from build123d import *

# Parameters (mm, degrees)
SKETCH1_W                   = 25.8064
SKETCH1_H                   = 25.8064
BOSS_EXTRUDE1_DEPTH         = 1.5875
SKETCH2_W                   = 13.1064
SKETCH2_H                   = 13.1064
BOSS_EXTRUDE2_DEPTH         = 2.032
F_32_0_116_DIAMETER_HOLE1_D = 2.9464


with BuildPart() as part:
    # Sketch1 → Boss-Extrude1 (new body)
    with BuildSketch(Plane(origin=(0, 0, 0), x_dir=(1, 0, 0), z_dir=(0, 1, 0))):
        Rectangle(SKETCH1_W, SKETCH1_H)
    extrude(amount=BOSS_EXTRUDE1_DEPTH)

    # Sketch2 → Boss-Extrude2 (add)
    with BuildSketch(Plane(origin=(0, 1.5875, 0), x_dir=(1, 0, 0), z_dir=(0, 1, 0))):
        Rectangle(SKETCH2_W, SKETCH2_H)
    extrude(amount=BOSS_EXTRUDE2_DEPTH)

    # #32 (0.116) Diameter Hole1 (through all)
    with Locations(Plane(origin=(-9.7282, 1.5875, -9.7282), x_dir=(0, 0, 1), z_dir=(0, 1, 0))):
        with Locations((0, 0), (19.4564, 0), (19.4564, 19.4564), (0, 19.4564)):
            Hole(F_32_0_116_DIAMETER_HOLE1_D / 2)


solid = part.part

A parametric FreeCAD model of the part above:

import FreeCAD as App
import Part
import Sketcher

V = App.Vector
Q = App.Units.Quantity

doc = App.newDocument("Part")
body = doc.addObject("PartDesign::Body", "Body")

sketch1 = body.newObject("Sketcher::SketchObject", "Sketch")
sketch1.AttachmentSupport = (doc.getObject("XZ_Plane"), [""])
sketch1.MapMode = "FlatFace"
sketch1.addGeometry([
    Part.LineSegment(V(-13, -13, 0), V(-13, 13, 0)),
    Part.LineSegment(V(-13, 13, 0), V(13, 13, 0)),
    Part.LineSegment(V(13, 13, 0), V(13, -13, 0)),
    Part.LineSegment(V(13, -13, 0), V(-13, -13, 0)),
], False)
sketch1.addConstraint([
    Sketcher.Constraint("Coincident", 0, 2, 1, 1),
    Sketcher.Constraint("Coincident", 1, 2, 2, 1),
    Sketcher.Constraint("Coincident", 2, 2, 3, 1),
    Sketcher.Constraint("Coincident", 3, 2, 0, 1),
    Sketcher.Constraint("Vertical", 0),
    Sketcher.Constraint("Horizontal", 1),
    Sketcher.Constraint("Vertical", 2),
    Sketcher.Constraint("Horizontal", 3),
    Sketcher.Constraint("Symmetric", 0, 2, 2, 2, -1, 1),
    Sketcher.Constraint("Equal", 3, 0),
    Sketcher.Constraint("DistanceX", 1, 1, 1, 2, Q("1.016 in")),
])
pad1 = body.newObject("PartDesign::Pad", "Pad")
pad1.Profile = sketch1
pad1.Length = Q("0.0625 in")
pad1.Reversed = True

sketch2 = body.newObject("Sketcher::SketchObject", "Sketch001")
sketch2.AttachmentSupport = (doc.getObject("XZ_Plane"), [""])
sketch2.MapMode = "FlatFace"
sketch2.AttachmentOffset = App.Placement(V(0, 0, -0.0625 * 25.4), App.Rotation())
sketch2.addGeometry([
    Part.LineSegment(V(-7, -7, 0), V(-7, 7, 0)),
    Part.LineSegment(V(-7, 7, 0), V(7, 7, 0)),
    Part.LineSegment(V(7, 7, 0), V(7, -7, 0)),
    Part.LineSegment(V(7, -7, 0), V(-7, -7, 0)),
], False)
sketch2.addConstraint([
    Sketcher.Constraint("Coincident", 0, 2, 1, 1),
    Sketcher.Constraint("Coincident", 1, 2, 2, 1),
    Sketcher.Constraint("Coincident", 2, 2, 3, 1),
    Sketcher.Constraint("Coincident", 3, 2, 0, 1),
    Sketcher.Constraint("Vertical", 0),
    Sketcher.Constraint("Horizontal", 1),
    Sketcher.Constraint("Vertical", 2),
    Sketcher.Constraint("Horizontal", 3),
    Sketcher.Constraint("Symmetric", 0, 2, 2, 2, -1, 1),
    Sketcher.Constraint("Equal", 3, 0),
    Sketcher.Constraint("DistanceX", 1, 1, 1, 2, Q("0.516 in")),
])
pad2 = body.newObject("PartDesign::Pad", "Pad001")
pad2.Profile = sketch2
pad2.Length = Q("0.08 in")
pad2.Reversed = True

sketch3 = body.newObject("Sketcher::SketchObject", "Sketch002")
sketch3.AttachmentSupport = (doc.getObject("XZ_Plane"), [""])
sketch3.MapMode = "FlatFace"
sketch3.AttachmentOffset = App.Placement(V(0, 0, -0.0625 * 25.4), App.Rotation())
sketch3.addGeometry([
    Part.Circle(V(-9.7, -9.7, 0), V(0, 0, 1), 1.5),
    Part.Circle(V(-9.7, 9.7, 0), V(0, 0, 1), 1.5),
    Part.Circle(V(9.7, 9.7, 0), V(0, 0, 1), 1.5),
    Part.Circle(V(9.7, -9.7, 0), V(0, 0, 1), 1.5),
], False)
sketch3.addConstraint([
    Sketcher.Constraint("Equal", 0, 1),
    Sketcher.Constraint("Equal", 1, 2),
    Sketcher.Constraint("Equal", 2, 3),
    Sketcher.Constraint("Symmetric", 0, 3, 2, 3, -1, 1),
    Sketcher.Constraint("Symmetric", 1, 3, 3, 3, -1, 1),
    Sketcher.Constraint("Symmetric", 1, 3, 2, 3, -2),
    Sketcher.Constraint("Diameter", 0, Q("0.116 in")),
    Sketcher.Constraint("DistanceX", 0, 3, -1, 1, Q("0.383 in")),
    Sketcher.Constraint("DistanceY", 0, 3, -1, 1, Q("0.383 in")),
])
doc.recompute()
hole = body.newObject("PartDesign::Hole", "Hole")
hole.Profile = sketch3
hole.ThreadType = "None"
hole.Diameter = Q("0.116 in")
hole.DepthType = "ThroughAll"
hole.Reversed = True

doc.recompute()
